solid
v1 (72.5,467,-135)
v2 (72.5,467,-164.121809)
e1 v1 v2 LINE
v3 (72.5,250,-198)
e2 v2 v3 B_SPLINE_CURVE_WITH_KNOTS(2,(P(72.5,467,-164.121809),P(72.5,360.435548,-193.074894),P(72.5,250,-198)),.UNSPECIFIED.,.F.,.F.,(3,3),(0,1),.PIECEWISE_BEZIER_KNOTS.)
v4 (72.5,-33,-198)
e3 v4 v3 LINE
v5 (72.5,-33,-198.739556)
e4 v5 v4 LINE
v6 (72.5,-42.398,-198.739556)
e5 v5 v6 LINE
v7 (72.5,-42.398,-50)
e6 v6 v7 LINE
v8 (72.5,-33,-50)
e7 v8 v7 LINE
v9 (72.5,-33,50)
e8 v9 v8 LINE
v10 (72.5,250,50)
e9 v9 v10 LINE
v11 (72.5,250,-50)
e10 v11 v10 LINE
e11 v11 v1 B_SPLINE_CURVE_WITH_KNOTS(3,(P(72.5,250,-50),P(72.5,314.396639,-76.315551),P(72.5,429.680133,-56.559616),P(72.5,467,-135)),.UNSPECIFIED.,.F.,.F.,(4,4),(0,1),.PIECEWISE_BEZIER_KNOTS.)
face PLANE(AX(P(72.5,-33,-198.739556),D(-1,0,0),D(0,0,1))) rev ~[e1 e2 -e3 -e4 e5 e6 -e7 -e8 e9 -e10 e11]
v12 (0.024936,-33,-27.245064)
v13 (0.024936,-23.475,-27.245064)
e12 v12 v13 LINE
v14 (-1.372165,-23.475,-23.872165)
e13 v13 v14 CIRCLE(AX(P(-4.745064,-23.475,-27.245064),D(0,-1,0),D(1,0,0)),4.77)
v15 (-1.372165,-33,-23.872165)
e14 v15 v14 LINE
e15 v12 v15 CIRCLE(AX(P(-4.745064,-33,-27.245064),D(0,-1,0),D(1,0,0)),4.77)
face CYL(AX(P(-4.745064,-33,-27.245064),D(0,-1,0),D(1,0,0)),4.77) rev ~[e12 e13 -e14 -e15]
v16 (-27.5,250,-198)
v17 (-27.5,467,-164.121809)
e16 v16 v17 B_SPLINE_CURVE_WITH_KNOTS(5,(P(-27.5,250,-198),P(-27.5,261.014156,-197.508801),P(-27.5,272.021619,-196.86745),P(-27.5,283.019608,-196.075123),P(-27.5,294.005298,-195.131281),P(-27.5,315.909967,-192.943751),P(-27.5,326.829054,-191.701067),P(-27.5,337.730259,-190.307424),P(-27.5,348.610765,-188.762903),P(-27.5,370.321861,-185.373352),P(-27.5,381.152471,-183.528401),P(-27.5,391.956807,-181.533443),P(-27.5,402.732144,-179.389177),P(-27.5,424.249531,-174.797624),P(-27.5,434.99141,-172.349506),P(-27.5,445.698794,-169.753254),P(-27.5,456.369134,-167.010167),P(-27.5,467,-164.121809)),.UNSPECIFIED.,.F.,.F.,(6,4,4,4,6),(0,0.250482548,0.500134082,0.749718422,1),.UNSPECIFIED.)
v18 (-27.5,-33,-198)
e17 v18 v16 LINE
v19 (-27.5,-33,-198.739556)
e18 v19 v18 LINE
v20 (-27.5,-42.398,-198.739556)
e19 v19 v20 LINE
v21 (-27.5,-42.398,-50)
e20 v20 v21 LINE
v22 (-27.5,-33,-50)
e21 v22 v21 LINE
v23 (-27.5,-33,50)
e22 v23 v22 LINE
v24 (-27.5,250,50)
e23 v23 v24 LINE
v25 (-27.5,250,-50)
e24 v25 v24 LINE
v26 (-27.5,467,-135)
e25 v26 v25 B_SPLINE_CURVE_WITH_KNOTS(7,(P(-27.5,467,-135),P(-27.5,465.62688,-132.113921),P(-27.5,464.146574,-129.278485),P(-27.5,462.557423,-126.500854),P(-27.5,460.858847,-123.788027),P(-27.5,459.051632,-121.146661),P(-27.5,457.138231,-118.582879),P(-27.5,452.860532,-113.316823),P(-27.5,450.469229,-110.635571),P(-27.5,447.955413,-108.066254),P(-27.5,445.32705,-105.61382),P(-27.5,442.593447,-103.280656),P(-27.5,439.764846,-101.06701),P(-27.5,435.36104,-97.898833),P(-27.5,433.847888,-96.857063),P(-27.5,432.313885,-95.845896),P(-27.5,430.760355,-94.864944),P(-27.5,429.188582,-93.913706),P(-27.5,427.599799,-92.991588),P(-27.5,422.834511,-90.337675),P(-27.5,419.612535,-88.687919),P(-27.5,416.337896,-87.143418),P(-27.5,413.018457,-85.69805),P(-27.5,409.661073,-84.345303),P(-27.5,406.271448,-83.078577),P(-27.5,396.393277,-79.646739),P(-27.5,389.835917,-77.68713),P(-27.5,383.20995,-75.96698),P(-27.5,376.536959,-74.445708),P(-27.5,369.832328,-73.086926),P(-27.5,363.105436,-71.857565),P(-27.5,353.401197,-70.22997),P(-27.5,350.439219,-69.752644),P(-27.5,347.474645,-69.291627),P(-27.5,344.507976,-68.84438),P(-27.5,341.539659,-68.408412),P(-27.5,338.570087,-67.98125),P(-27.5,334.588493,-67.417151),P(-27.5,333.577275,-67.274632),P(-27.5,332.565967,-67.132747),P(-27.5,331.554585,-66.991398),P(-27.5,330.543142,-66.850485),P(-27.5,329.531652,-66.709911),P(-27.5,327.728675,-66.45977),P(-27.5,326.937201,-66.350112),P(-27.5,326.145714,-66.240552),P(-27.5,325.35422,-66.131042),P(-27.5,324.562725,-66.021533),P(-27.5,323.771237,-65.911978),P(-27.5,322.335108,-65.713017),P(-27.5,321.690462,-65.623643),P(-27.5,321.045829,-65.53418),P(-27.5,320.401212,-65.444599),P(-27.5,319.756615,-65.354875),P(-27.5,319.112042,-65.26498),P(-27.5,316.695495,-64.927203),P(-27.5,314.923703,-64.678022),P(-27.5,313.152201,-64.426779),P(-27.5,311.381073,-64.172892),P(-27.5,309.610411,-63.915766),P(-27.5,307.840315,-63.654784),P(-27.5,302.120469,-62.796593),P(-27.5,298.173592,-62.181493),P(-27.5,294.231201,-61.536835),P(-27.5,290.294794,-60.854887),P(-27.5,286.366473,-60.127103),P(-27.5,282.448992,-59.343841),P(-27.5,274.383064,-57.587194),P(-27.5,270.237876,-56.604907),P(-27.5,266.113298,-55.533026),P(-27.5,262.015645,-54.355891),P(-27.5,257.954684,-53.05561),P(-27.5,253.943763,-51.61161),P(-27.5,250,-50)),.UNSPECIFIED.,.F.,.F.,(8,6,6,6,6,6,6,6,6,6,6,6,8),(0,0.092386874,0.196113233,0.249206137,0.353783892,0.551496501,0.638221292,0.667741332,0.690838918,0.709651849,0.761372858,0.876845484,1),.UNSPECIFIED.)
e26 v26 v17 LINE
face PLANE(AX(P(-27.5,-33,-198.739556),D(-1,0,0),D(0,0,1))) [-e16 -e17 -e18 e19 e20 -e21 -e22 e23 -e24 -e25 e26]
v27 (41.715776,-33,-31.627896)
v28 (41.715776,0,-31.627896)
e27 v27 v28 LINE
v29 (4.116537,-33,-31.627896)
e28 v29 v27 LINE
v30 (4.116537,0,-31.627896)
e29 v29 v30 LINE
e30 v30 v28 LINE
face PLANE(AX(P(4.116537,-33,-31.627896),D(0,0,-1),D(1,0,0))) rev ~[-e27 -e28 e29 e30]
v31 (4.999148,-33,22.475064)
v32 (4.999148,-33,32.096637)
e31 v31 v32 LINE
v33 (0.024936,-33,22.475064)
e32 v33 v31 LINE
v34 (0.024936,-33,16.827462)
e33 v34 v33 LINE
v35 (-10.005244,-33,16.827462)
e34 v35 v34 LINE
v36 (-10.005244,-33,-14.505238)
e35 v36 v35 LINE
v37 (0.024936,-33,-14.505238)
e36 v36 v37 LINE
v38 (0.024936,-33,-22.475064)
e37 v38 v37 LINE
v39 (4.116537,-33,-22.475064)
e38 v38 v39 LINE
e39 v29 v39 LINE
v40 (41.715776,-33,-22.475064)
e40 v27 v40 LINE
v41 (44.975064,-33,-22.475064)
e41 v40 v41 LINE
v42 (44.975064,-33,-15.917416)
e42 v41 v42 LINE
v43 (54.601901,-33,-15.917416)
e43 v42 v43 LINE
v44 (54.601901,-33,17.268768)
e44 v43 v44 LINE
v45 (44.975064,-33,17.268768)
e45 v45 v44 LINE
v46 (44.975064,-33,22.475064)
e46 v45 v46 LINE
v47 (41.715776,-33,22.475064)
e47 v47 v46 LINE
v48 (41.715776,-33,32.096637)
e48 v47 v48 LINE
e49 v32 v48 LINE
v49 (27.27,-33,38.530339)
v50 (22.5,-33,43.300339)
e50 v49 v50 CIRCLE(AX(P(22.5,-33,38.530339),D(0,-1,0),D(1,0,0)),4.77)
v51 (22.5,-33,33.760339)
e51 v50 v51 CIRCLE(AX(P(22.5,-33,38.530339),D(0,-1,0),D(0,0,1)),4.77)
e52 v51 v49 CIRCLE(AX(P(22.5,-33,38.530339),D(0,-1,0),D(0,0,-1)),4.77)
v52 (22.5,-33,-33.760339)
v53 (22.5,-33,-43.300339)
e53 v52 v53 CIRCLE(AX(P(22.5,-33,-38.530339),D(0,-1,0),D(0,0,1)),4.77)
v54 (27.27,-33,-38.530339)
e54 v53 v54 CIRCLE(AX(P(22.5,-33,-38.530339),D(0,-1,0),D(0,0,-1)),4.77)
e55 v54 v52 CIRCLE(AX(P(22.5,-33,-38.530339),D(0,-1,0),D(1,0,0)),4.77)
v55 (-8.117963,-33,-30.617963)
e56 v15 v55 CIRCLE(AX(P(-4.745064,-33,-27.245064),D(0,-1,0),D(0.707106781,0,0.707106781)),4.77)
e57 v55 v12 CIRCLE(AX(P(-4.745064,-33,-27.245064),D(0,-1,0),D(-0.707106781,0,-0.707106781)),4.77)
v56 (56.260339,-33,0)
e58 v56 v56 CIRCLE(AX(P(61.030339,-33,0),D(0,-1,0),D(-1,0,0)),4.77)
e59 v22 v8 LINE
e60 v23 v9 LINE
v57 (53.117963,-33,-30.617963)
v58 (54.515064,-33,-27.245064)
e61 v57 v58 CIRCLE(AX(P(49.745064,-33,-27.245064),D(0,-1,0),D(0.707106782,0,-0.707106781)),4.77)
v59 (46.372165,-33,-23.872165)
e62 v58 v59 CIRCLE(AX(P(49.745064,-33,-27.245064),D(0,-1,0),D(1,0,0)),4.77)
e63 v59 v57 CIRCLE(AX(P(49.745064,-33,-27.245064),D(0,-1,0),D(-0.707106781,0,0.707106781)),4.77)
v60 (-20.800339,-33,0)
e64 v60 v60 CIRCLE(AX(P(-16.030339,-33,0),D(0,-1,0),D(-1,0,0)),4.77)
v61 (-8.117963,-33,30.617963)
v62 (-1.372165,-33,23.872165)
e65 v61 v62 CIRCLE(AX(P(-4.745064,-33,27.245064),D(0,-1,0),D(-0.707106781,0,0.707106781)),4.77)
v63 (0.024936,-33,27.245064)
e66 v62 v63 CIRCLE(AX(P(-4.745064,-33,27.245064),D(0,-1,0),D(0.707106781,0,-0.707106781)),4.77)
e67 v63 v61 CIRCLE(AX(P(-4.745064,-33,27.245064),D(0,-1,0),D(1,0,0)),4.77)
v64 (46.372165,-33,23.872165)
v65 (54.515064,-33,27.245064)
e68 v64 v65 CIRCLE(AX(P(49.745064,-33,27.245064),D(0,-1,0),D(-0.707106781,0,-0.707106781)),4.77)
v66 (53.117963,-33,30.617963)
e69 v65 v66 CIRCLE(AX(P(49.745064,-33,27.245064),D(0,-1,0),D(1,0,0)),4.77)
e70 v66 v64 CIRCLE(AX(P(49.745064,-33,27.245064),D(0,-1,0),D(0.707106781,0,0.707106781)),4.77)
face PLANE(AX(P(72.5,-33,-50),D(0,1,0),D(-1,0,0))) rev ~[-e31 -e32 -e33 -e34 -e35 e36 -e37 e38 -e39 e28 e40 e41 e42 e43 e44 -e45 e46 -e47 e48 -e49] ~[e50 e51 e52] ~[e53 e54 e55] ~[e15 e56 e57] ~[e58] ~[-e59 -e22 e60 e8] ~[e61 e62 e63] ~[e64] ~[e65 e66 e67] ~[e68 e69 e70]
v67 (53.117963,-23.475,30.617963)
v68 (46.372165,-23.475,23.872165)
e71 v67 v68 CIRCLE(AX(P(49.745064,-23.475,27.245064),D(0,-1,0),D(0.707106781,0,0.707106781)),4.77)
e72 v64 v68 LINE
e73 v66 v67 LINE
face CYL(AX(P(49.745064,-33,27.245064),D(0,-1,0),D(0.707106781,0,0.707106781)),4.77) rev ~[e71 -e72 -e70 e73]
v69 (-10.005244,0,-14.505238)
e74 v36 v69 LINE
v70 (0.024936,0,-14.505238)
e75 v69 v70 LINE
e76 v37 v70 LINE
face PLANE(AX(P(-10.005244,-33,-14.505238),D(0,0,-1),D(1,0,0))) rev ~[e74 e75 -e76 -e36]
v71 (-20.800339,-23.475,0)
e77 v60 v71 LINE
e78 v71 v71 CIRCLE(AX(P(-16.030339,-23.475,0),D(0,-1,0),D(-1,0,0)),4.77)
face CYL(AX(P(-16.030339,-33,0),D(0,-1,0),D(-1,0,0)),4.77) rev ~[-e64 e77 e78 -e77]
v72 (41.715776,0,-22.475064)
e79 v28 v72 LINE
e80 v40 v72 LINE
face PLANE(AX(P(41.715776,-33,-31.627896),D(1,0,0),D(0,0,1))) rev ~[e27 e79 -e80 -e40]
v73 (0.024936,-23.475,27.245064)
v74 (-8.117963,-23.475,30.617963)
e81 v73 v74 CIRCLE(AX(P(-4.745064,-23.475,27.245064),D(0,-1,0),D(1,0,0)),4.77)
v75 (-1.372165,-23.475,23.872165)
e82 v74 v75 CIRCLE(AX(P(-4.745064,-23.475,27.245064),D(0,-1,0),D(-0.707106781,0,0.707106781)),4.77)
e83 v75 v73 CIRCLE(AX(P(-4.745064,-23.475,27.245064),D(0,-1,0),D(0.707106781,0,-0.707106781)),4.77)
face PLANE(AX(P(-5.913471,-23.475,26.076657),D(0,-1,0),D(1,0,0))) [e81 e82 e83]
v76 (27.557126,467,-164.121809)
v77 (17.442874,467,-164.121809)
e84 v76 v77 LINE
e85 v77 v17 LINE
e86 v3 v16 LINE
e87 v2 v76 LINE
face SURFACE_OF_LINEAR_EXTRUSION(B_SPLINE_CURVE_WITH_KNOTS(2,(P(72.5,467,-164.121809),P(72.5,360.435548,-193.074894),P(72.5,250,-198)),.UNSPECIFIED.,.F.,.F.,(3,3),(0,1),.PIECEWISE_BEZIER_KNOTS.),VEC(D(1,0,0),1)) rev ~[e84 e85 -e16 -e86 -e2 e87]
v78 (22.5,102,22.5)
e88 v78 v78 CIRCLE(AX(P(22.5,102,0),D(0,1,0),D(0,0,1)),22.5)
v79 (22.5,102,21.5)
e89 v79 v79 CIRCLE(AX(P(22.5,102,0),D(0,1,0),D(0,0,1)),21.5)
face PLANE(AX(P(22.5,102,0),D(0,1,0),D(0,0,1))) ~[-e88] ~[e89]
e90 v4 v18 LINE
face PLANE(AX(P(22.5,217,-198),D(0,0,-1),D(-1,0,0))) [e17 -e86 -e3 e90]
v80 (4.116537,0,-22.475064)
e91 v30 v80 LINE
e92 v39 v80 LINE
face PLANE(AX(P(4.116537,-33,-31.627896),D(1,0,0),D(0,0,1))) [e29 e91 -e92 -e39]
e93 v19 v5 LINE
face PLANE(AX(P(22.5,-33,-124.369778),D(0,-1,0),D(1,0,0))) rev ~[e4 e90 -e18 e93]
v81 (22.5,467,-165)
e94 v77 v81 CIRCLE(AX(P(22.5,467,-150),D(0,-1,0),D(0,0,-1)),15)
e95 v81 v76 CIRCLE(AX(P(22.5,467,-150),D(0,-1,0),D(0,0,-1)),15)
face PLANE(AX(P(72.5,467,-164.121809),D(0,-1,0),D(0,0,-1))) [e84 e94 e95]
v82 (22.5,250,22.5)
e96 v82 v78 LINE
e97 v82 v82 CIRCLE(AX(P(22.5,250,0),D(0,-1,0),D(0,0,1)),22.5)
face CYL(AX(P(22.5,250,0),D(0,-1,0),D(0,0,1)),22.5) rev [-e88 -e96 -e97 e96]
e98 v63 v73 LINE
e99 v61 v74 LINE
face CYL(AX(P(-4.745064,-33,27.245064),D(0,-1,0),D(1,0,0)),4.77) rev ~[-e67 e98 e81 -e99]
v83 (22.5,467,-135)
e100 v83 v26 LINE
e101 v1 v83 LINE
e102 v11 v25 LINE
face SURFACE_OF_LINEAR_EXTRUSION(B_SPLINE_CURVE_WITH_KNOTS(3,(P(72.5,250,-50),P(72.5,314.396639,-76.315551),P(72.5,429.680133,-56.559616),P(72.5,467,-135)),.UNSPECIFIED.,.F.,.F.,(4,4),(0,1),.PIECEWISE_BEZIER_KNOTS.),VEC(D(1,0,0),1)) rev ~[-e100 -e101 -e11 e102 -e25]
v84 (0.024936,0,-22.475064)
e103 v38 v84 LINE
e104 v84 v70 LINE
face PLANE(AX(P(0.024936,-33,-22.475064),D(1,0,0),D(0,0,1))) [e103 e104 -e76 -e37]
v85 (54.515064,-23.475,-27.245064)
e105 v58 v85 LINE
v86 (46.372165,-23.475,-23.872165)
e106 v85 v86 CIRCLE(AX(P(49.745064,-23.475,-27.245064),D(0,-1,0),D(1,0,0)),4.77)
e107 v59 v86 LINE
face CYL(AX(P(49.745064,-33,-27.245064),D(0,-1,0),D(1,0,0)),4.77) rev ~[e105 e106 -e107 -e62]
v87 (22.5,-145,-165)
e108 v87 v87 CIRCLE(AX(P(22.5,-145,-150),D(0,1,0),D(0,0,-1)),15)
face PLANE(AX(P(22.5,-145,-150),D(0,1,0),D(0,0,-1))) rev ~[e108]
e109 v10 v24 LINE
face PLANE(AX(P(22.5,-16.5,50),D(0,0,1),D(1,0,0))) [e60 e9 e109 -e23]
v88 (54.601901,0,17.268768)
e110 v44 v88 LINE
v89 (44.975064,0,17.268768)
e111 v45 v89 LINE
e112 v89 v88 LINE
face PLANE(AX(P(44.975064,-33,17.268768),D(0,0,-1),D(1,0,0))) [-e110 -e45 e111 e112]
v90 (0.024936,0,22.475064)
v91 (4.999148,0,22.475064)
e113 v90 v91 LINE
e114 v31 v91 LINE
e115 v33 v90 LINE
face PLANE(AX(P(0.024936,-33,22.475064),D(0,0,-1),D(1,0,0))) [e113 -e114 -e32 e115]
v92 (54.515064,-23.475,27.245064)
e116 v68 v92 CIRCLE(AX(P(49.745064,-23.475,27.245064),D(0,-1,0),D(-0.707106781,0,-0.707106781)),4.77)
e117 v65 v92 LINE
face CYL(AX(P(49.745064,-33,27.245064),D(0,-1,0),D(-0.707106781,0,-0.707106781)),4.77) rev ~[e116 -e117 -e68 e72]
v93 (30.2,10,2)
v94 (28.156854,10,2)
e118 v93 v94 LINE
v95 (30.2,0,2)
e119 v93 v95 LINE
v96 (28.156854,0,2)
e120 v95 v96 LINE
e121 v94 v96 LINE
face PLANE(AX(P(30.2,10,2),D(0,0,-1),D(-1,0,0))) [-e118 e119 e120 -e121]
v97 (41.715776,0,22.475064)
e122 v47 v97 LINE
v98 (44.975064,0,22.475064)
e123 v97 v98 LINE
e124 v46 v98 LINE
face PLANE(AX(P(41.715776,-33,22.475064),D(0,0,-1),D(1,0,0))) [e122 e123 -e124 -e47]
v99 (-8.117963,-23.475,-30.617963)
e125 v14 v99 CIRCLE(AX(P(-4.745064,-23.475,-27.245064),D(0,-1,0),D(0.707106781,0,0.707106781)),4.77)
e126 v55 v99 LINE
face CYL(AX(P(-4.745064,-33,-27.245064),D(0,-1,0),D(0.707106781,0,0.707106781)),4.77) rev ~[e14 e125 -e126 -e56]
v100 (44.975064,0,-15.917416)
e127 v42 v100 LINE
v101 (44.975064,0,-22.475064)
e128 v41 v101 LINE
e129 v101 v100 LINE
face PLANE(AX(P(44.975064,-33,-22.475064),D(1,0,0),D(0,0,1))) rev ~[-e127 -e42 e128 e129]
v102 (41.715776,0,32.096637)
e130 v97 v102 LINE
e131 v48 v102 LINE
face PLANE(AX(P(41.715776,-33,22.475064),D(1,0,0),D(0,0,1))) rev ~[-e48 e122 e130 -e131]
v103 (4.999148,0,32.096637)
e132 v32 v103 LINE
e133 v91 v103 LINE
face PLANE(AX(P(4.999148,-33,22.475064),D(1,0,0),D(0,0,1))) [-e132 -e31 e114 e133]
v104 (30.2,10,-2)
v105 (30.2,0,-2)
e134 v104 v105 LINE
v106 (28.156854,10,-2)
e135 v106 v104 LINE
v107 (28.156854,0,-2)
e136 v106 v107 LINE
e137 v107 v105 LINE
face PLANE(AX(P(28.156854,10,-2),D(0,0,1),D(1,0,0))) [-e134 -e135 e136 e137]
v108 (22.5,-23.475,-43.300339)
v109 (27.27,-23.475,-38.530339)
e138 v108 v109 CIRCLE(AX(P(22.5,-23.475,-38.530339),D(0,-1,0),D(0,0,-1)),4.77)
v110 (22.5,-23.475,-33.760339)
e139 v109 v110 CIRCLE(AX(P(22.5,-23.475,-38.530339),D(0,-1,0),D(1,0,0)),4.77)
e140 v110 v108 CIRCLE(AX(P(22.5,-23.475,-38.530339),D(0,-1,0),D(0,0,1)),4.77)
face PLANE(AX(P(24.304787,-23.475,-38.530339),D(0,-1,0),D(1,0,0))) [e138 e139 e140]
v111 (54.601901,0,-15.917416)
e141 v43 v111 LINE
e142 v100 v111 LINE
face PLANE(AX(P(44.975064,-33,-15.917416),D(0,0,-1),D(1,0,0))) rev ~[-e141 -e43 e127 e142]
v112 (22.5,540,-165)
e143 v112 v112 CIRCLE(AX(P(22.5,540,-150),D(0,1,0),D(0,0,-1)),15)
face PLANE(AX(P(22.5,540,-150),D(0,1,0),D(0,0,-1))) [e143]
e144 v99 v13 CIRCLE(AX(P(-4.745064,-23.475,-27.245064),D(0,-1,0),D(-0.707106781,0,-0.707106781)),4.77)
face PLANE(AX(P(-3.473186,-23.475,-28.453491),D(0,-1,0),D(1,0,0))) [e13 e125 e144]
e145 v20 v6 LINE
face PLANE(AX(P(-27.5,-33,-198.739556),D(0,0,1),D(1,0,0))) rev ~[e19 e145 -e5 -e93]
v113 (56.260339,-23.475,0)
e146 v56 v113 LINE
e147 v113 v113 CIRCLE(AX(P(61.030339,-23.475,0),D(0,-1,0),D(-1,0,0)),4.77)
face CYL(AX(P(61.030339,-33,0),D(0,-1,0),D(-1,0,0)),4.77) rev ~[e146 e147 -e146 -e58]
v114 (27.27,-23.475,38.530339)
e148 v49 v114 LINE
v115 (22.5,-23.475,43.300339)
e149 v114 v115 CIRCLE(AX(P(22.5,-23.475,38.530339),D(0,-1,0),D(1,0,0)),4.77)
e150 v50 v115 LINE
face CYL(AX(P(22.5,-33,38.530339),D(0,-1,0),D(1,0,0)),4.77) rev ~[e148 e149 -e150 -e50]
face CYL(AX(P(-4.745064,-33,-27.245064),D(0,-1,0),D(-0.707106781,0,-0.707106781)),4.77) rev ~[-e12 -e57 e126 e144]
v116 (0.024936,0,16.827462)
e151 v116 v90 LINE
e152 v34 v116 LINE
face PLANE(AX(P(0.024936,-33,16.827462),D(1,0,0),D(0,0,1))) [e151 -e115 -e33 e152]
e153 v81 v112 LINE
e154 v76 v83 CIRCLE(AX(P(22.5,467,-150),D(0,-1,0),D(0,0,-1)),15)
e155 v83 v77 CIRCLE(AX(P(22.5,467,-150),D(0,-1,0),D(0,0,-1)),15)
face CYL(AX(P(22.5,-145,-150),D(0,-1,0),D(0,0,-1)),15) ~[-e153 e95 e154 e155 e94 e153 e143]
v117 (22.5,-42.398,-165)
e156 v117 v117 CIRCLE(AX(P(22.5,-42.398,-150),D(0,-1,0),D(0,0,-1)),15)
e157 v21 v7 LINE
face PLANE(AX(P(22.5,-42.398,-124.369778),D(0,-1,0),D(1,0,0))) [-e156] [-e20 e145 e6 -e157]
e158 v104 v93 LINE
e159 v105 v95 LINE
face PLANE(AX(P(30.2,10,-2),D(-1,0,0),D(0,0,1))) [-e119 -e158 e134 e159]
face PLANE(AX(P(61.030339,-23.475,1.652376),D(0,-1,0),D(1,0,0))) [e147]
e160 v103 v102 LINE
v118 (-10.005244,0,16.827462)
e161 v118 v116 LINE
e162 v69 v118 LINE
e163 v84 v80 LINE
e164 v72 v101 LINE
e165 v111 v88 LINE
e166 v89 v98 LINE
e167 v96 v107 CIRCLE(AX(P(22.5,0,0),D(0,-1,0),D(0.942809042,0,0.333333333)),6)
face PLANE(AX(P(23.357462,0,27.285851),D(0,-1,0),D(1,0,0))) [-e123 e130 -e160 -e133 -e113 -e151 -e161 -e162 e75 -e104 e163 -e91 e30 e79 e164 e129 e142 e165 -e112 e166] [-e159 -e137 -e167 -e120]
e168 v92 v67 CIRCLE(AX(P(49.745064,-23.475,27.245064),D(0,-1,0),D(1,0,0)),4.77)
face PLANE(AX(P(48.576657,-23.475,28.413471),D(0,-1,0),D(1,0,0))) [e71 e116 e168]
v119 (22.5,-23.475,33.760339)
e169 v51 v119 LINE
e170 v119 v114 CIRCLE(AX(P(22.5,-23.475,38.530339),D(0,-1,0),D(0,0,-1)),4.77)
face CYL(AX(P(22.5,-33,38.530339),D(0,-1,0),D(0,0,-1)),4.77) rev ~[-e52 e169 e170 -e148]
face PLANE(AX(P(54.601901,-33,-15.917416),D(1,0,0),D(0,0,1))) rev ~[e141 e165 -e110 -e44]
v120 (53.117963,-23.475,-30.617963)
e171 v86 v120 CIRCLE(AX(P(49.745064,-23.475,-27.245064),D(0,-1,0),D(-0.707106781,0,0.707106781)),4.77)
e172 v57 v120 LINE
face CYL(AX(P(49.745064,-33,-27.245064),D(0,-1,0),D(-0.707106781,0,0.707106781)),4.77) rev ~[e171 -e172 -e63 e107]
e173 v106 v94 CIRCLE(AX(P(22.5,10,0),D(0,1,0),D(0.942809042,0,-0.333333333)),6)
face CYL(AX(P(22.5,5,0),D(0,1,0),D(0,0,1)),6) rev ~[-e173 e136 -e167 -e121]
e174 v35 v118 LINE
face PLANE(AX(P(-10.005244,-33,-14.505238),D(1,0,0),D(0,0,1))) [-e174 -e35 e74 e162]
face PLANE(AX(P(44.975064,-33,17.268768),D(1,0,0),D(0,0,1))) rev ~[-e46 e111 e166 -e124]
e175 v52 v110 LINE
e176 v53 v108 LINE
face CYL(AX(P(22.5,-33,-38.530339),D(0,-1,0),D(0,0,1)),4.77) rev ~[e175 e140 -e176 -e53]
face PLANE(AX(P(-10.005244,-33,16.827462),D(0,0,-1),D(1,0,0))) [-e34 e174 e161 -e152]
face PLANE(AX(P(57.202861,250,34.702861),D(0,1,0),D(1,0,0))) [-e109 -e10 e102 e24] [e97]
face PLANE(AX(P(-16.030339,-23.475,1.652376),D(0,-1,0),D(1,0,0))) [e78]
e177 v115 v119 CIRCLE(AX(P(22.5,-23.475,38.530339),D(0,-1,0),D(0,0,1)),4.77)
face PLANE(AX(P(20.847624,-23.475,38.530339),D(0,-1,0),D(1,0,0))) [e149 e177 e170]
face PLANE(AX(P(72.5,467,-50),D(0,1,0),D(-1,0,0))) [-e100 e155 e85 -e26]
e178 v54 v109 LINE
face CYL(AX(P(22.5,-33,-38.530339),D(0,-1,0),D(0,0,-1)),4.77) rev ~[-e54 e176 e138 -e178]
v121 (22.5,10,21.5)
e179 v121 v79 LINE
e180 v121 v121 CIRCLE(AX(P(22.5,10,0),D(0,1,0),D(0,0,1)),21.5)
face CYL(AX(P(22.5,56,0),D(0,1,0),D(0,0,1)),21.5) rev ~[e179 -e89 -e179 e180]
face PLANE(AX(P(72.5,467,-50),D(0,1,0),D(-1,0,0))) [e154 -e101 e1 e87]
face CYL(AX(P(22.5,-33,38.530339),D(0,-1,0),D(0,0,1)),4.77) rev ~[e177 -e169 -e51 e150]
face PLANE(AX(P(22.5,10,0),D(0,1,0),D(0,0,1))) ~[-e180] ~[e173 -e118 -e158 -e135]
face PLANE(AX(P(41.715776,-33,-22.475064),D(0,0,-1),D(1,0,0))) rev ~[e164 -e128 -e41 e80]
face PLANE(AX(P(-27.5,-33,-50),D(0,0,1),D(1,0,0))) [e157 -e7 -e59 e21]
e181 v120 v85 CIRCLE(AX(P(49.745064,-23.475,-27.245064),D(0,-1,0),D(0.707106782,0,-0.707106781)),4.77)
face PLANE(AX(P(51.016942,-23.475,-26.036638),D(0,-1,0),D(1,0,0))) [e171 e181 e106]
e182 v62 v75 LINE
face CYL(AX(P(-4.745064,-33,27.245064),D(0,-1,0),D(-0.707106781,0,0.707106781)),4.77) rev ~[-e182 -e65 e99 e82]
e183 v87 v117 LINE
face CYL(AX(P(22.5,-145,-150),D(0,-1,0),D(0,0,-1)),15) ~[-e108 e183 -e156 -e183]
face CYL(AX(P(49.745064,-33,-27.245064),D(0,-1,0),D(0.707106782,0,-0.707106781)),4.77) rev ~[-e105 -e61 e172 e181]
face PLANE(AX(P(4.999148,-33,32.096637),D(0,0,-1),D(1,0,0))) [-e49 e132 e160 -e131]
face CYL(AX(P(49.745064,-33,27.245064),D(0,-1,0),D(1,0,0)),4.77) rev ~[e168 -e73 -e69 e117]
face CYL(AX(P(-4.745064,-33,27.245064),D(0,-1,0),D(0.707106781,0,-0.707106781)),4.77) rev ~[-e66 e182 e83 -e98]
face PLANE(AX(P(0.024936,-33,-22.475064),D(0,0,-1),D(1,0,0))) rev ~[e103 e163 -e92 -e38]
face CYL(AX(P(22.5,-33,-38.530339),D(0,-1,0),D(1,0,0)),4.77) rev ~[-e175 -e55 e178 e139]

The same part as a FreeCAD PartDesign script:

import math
import FreeCAD as App
import Part
import Sketcher
Q = App.Units.Quantity

doc = App.newDocument("Part")
params = doc.addObject("Spreadsheet::Sheet", "Params")
for row, (alias, value) in enumerate([
    ("sketch1_width", "1 mm"),
    ("sketch1_width2", "10 mm"),
    ("sketch1_height", "92 mm"),
    ("sketch1_height2", "148 mm"),
    ("sketch1_width3", "26.5 mm"),
    ("revolution_angle", "360 deg"),
    ("sketch2_radius", "6 mm"),
    ("sketch2_height", "4 mm"),
    ("pocket1_length", "10 mm"),
    ("sketch3_diameter", "100 mm"),
    ("sketch3_diameter2", "65 mm"),
    ("pad1_length", "250 mm"),
    ("sketch4_radius", "50 mm"),
    ("pad2_length", "250 mm"),
    ("sketch5_width", "100 mm"),
    ("sketch5_height", "33 mm"),
    ("pad3_length", "50 mm"),
    ("pad3_length2", "50 mm"),
    ("sketch6_diameter", "9.54 mm"),
    ("pocket2_length", "9.525 mm"),
    ("pocket3_length", "33 mm"),
    ("sketch8_width", "100 mm"),
    ("sketch8_height", "500 mm"),
    ("pad4_length", "148 mm"),
    ("sketch9_diameter", "30 mm"),
    ("pad5_length", "73 mm"),
    ("pad5_length2", "612 mm"),
    ("pocket4_length", "239 mm"),
    ("sketch11_width", "100 mm"),
    ("pad6_length", "9.398 mm"),
], start=1):
    params.set(f"A{row}", alias)
    params.set(f"B{row}", "=" + value)
    params.setAlias(f"B{row}", alias)

body = doc.addObject("PartDesign::Body", "Body")

# Sketch on XY plane
sketch1 = body.newObject("Sketcher::SketchObject", "Sketch")
sketch1.AttachmentSupport = (doc.getObject("XY_Plane"), [""])
sketch1.MapMode = "FlatFace"
sketch1.addGeometry([
    Part.LineSegment(App.Vector(-10, 0, 0), App.Vector(16.5, 0, 0)),  # 0
    Part.LineSegment(App.Vector(16.5, 0, 0), App.Vector(16.5, 10, 0)),  # 1
    Part.LineSegment(App.Vector(16.5, 10, 0), App.Vector(1, 10, 0)),  # 2
    Part.LineSegment(App.Vector(1, 10, 0), App.Vector(1, 102, 0)),  # 3
    Part.LineSegment(App.Vector(1, 102, 0), App.Vector(0, 102, 0)),  # 4
    Part.LineSegment(App.Vector(0, 102, 0), App.Vector(0, 250, 0)),  # 5
    Part.LineSegment(App.Vector(0, 250, 0), App.Vector(-10, 250, 0)),  # 6
    Part.LineSegment(App.Vector(-10, 250, 0), App.Vector(-10, 0, 0)),  # 7
    Part.LineSegment(App.Vector(28.5, 10, 0), App.Vector(28.5, 0, 0)),  # 8
    Part.LineSegment(App.Vector(28.5, 0, 0), App.Vector(55, 0, 0)),  # 9
    Part.LineSegment(App.Vector(55, 0, 0), App.Vector(55, 250, 0)),  # 10
    Part.LineSegment(App.Vector(55, 250, 0), App.Vector(45, 250, 0)),  # 11
    Part.LineSegment(App.Vector(45, 250, 0), App.Vector(45, 102, 0)),  # 12
    Part.LineSegment(App.Vector(45, 102, 0), App.Vector(44, 102, 0)),  # 13
    Part.LineSegment(App.Vector(44, 102, 0), App.Vector(44, 10, 0)),  # 14
    Part.LineSegment(App.Vector(44, 10, 0), App.Vector(28.5, 10, 0)),  # 15
], False)
sketch1.addGeometry(Part.LineSegment(App.Vector(22.5, 0, 0), App.Vector(22.5, 250, 0)), True)  # axis
sketch1.addConstraint([
    Sketcher.Constraint("Coincident", 0, 2, 1, 1),
    Sketcher.Constraint("Coincident", 1, 2, 2, 1),
    Sketcher.Constraint("Coincident", 2, 2, 3, 1),
    Sketcher.Constraint("Coincident", 3, 2, 4, 1),
    Sketcher.Constraint("Coincident", 4, 2, 5, 1),
    Sketcher.Constraint("Coincident", 5, 2, 6, 1),
    Sketcher.Constraint("Coincident", 6, 2, 7, 1),
    Sketcher.Constraint("Coincident", 7, 2, 0, 1),
    Sketcher.Constraint("Coincident", 8, 2, 9, 1),
    Sketcher.Constraint("Coincident", 9, 2, 10, 1),
    Sketcher.Constraint("Coincident", 10, 2, 11, 1),
    Sketcher.Constraint("Coincident", 11, 2, 12, 1),
    Sketcher.Constraint("Coincident", 12, 2, 13, 1),
    Sketcher.Constraint("Coincident", 13, 2, 14, 1),
    Sketcher.Constraint("Coincident", 14, 2, 15, 1),
    Sketcher.Constraint("Coincident", 15, 2, 8, 1),
    Sketcher.Constraint("Horizontal", 0),
    Sketcher.Constraint("Vertical", 1),
    Sketcher.Constraint("Horizontal", 2),
    Sketcher.Constraint("Vertical", 3),
    Sketcher.Constraint("Horizontal", 4),
    Sketcher.Constraint("Vertical", 5),
    Sketcher.Constraint("Horizontal", 6),
    Sketcher.Constraint("Vertical", 7),
    Sketcher.Constraint("Vertical", 8),
    Sketcher.Constraint("Horizontal", 9),
    Sketcher.Constraint("Vertical", 10),
    Sketcher.Constraint("Horizontal", 11),
    Sketcher.Constraint("Vertical", 12),
    Sketcher.Constraint("Horizontal", 13),
    Sketcher.Constraint("Vertical", 14),
    Sketcher.Constraint("Horizontal", 15),
    Sketcher.Constraint("Vertical", 16),
    Sketcher.Constraint("PointOnObject", 0, 2, -1),
    Sketcher.Constraint("PointOnObject", 4, 2, -2),
    Sketcher.Constraint("PointOnObject", 8, 2, -1),
    Sketcher.Constraint("PointOnObject", 16, 1, -1),
    Sketcher.Constraint("Horizontal", 6, 2, 10, 2),
    Sketcher.Constraint("Horizontal", 4, 2, 12, 2),
    Sketcher.Constraint("Horizontal", 2, 2, 14, 2),
    Sketcher.Constraint("Horizontal", 11, 2, 16, 2),
    Sketcher.Constraint("Equal", 0, 9),
    Sketcher.Constraint("Equal", 6, 11),
    Sketcher.Constraint("Equal", 4, 13),
    Sketcher.Constraint("Equal", 11, 1),
    Sketcher.Constraint("DistanceX", 4, 2, 4, 1, Q("1 mm")),
    Sketcher.Constraint("DistanceX", 6, 2, 6, 1, Q("10 mm")),
    Sketcher.Constraint("DistanceY", 3, 1, 3, 2, Q("92 mm")),
    Sketcher.Constraint("DistanceY", 5, 1, 5, 2, Q("148 mm")),
    Sketcher.Constraint("DistanceX", 0, 1, 0, 2, Q("26.5 mm")),
    Sketcher.Constraint("DistanceX", -1, 1, 9, 2, Q("55 mm")),
    Sketcher.Constraint("DistanceX", 0, 2, 16, 1, Q("6 mm")),
])
sketch1.setExpression("Constraints[45]", "Params.sketch1_width")
sketch1.setExpression("Constraints[46]", "Params.sketch1_width2")
sketch1.setExpression("Constraints[47]", "Params.sketch1_height")
sketch1.setExpression("Constraints[48]", "Params.sketch1_height2")
sketch1.setExpression("Constraints[49]", "Params.sketch1_width3")
revolution = body.newObject("PartDesign::Revolution", "Revolution")
revolution.Profile = sketch1
revolution.ReferenceAxis = (sketch1, ["Axis0"])
revolution.setExpression("Angle", "Params.revolution_angle")

# Sketch on XZ plane
sketch2 = body.newObject("Sketcher::SketchObject", "Sketch001")
sketch2.AttachmentSupport = (doc.getObject("XZ_Plane"), [""])
sketch2.MapMode = "FlatFace"
sketch2.AttachmentOffset = App.Placement(App.Vector(0, 0, -10), App.Rotation())
sketch2.addGeometry([
    Part.LineSegment(App.Vector(30.2, -2, 0), App.Vector(30.2, 2, 0)),  # 0
    Part.LineSegment(App.Vector(30.2, 2, 0), App.Vector(28.156854, 2, 0)),  # 1
    Part.ArcOfCircle(Part.Circle(App.Vector(22.5, 0, 0), App.Vector(0, 0, 1), 6), math.radians(0), math.radians(19.471221)),  # 2
    Part.ArcOfCircle(Part.Circle(App.Vector(22.5, 0, 0), App.Vector(0, 0, 1), 6), math.radians(-19.471221), math.radians(0)),  # 3
    Part.LineSegment(App.Vector(28.156854, -2, 0), App.Vector(30.2, -2, 0)),  # 4
], False)
sketch2.addConstraint([
    Sketcher.Constraint("Coincident", 0, 2, 1, 1),
    Sketcher.Constraint("Coincident", 1, 2, 2, 2),
    Sketcher.Constraint("Tangent", 2, 1, 3, 2),
    Sketcher.Constraint("Coincident", 3, 1, 4, 1),
    Sketcher.Constraint("Coincident", 4, 2, 0, 1),
    Sketcher.Constraint("Vertical", 0),
    Sketcher.Constraint("Horizontal", 1),
    Sketcher.Constraint("Horizontal", 4),
    Sketcher.Constraint("Equal", 2, 3),
    Sketcher.Constraint("Symmetric", 1, 2, 3, 1, -1),
    Sketcher.Constraint("PointOnObject", 2, 1, -1),
    Sketcher.Constraint("Radius", 2, Q("6 mm")),
    Sketcher.Constraint("DistanceY", 0, 1, 0, 2, Q("4 mm")),
    Sketcher.Constraint("DistanceX", -1, 1, 2, 3, Q("22.5 mm")),
    Sketcher.Constraint("DistanceX", -1, 1, 0, 2, Q("30.2 mm")),
])
sketch2.setExpression("Constraints[11]", "Params.sketch2_radius")
sketch2.setExpression("Constraints[12]", "Params.sketch2_height")
pocket1 = body.newObject("PartDesign::Pocket", "Pocket")
pocket1.Profile = sketch2
pocket1.setExpression("Length", "Params.pocket1_length")
pocket1.Reversed = True

# Sketch on XZ plane
sketch3 = body.newObject("Sketcher::SketchObject", "Sketch002")
sketch3.AttachmentSupport = (doc.getObject("XZ_Plane"), [""])
sketch3.MapMode = "FlatFace"
sketch3.addGeometry([
    Part.Circle(App.Vector(22.5, 0, 0), App.Vector(0, 0, 1), 50),
    Part.Circle(App.Vector(22.5, 0, 0), App.Vector(0, 0, 1), 32.5),
], False)
sketch3.addConstraint([
    Sketcher.Constraint("Coincident", 1, 3, 0, 3),
    Sketcher.Constraint("PointOnObject", 0, 3, -1),
    Sketcher.Constraint("Diameter", 0, Q("100 mm")),
    Sketcher.Constraint("Diameter", 1, Q("65 mm")),
    Sketcher.Constraint("DistanceX", -1, 1, 0, 3, Q("22.5 mm")),
])
sketch3.setExpression("Constraints[2]", "Params.sketch3_diameter")
sketch3.setExpression("Constraints[3]", "Params.sketch3_diameter2")
pad1 = body.newObject("PartDesign::Pad", "Pad")
pad1.Profile = sketch3
pad1.setExpression("Length", "Params.pad1_length")
pad1.Reversed = True

# Sketch on XZ plane
sketch4 = body.newObject("Sketcher::SketchObject", "Sketch003")
sketch4.AttachmentSupport = (doc.getObject("XZ_Plane"), [""])
sketch4.MapMode = "FlatFace"
sketch4.addGeometry([
    Part.ArcOfCircle(Part.Circle(App.Vector(22.5, 0, 0), App.Vector(0, 0, 1), 50), math.radians(0), math.radians(90)),  # 0
    Part.LineSegment(App.Vector(22.5, 50, 0), App.Vector(72.5, 50, 0)),  # 1
    Part.LineSegment(App.Vector(72.5, 50, 0), App.Vector(72.5, 0, 0)),  # 2
    Part.ArcOfCircle(Part.Circle(App.Vector(22.5, 0, 0), App.Vector(0, 0, 1), 50), math.radians(90), math.radians(180)),  # 3
    Part.LineSegment(App.Vector(-27.5, 0, 0), App.Vector(-27.5, 50, 0)),  # 4
    Part.LineSegment(App.Vector(-27.5, 50, 0), App.Vector(22.5, 50, 0)),  # 5
    Part.LineSegment(App.Vector(72.5, -50, 0), App.Vector(22.5, -50, 0)),  # 6
    Part.ArcOfCircle(Part.Circle(App.Vector(22.5, 0, 0), App.Vector(0, 0, 1), 50), math.radians(-90), math.radians(0)),  # 7
    Part.LineSegment(App.Vector(72.5, 0, 0), App.Vector(72.5, -50, 0)),  # 8
    Part.LineSegment(App.Vector(-27.5, -50, 0), App.Vector(-27.5, 0, 0)),  # 9
    Part.ArcOfCircle(Part.Circle(App.Vector(22.5, 0, 0), App.Vector(0, 0, 1), 50), math.radians(-180), math.radians(-90)),  # 10
    Part.LineSegment(App.Vector(22.5, -50, 0), App.Vector(-27.5, -50, 0)),  # 11
], False)
sketch4.addConstraint([
    Sketcher.Constraint("Tangent", 0, 2, 1, 1),
    Sketcher.Constraint("Coincident", 1, 2, 2, 1),
    Sketcher.Constraint("Tangent", 2, 2, 0, 1),
    Sketcher.Constraint("Tangent", 3, 2, 4, 1),
    Sketcher.Constraint("Coincident", 4, 2, 5, 1),
    Sketcher.Constraint("Tangent", 5, 2, 3, 1),
    Sketcher.Constraint("Tangent", 6, 2, 7, 1),
    Sketcher.Constraint("Tangent", 7, 2, 8, 1),
    Sketcher.Constraint("Coincident", 8, 2, 6, 1),
    Sketcher.Constraint("Tangent", 9, 2, 10, 1),
    Sketcher.Constraint("Tangent", 10, 2, 11, 1),
    Sketcher.Constraint("Coincident", 11, 2, 9, 1),
    Sketcher.Constraint("Horizontal", 1),
    Sketcher.Constraint("Vertical", 2),
    Sketcher.Constraint("Vertical", 4),
    Sketcher.Constraint("Horizontal", 5),
    Sketcher.Constraint("Horizontal", 6),
    Sketcher.Constraint("Vertical", 8),
    Sketcher.Constraint("Vertical", 9),
    Sketcher.Constraint("Horizontal", 11),
    Sketcher.Constraint("Coincident", 3, 3, 0, 3),
    Sketcher.Constraint("Coincident", 7, 3, 0, 3),
    Sketcher.Constraint("Coincident", 10, 3, 0, 3),
    Sketcher.Constraint("Equal", 0, 3),
    Sketcher.Constraint("Equal", 3, 7),
    Sketcher.Constraint("Equal", 7, 10),
    Sketcher.Constraint("PointOnObject", 0, 3, -1),
    Sketcher.Constraint("Radius", 0, Q("50 mm")),
    Sketcher.Constraint("DistanceX", -1, 1, 0, 3, Q("22.5 mm")),
])
sketch4.setExpression("Constraints[27]", "Params.sketch4_radius")
pad2 = body.newObject("PartDesign::Pad", "Pad001")
pad2.Profile = sketch4
pad2.setExpression("Length", "Params.pad2_length")
pad2.Reversed = True

# Sketch on XY plane
sketch5 = body.newObject("Sketcher::SketchObject", "Sketch004")
sketch5.AttachmentSupport = (doc.getObject("XY_Plane"), [""])
sketch5.MapMode = "FlatFace"
sketch5.addGeometry([
    Part.LineSegment(App.Vector(-27.5, 0, 0), App.Vector(-27.5, -33, 0)),
    Part.LineSegment(App.Vector(-27.5, -33, 0), App.Vector(72.5, -33, 0)),
    Part.LineSegment(App.Vector(72.5, -33, 0), App.Vector(72.5, 0, 0)),
    Part.LineSegment(App.Vector(72.5, 0, 0), App.Vector(-27.5, 0, 0)),
], False)
sketch5.addConstraint([
    Sketcher.Constraint("Coincident", 0, 2, 1, 1),
    Sketcher.Constraint("Coincident", 1, 2, 2, 1),
    Sketcher.Constraint("Coincident", 2, 2, 3, 1),
    Sketcher.Constraint("Coincident", 3, 2, 0, 1),
    Sketcher.Constraint("Vertical", 0),
    Sketcher.Constraint("Horizontal", 1),
    Sketcher.Constraint("Vertical", 2),
    Sketcher.Constraint("Horizontal", 3),
    Sketcher.Constraint("PointOnObject", 2, 2, -1),
    Sketcher.Constraint("DistanceX", 1, 1, 1, 2, Q("100 mm")),
    Sketcher.Constraint("DistanceY", 0, 2, 0, 1, Q("33 mm")),
    Sketcher.Constraint("DistanceX", 0, 2, -1, 1, Q("27.5 mm")),
])
sketch5.setExpression("Constraints[9]", "Params.sketch5_width")
sketch5.setExpression("Constraints[10]", "Params.sketch5_height")
pad3 = body.newObject("PartDesign::Pad", "Pad002")
pad3.Profile = sketch5
pad3.Type = "TwoLengths"
pad3.setExpression("Length", "Params.pad3_length")
pad3.setExpression("Length2", "Params.pad3_length2")

# Sketch on XZ plane
sketch6 = body.newObject("Sketcher::SketchObject", "Sketch005")
sketch6.AttachmentSupport = (doc.getObject("XZ_Plane"), [""])
sketch6.MapMode = "FlatFace"
sketch6.AttachmentOffset = App.Placement(App.Vector(0, 0, 33), App.Rotation())
sketch6.addGeometry([
    Part.ArcOfCircle(Part.Circle(App.Vector(-4.745064, -27.245064, 0), App.Vector(0, 0, 1), 4.77), math.radians(0), math.radians(45)),  # 0
    Part.ArcOfCircle(Part.Circle(App.Vector(-4.745064, -27.245064, 0), App.Vector(0, 0, 1), 4.77), math.radians(45), math.radians(225)),  # 1
    Part.ArcOfCircle(Part.Circle(App.Vector(-4.745064, -27.245064, 0), App.Vector(0, 0, 1), 4.77), math.radians(-135), math.radians(0)),  # 2
    Part.ArcOfCircle(Part.Circle(App.Vector(22.5, -38.530339, 0), App.Vector(0, 0, 1), 4.77), math.radians(0), math.radians(90)),  # 3
    Part.ArcOfCircle(Part.Circle(App.Vector(22.5, -38.530339, 0), App.Vector(0, 0, 1), 4.77), math.radians(90), math.radians(270)),  # 4
    Part.ArcOfCircle(Part.Circle(App.Vector(22.5, -38.530339, 0), App.Vector(0, 0, 1), 4.77), math.radians(-90), math.radians(0)),  # 5
    Part.ArcOfCircle(Part.Circle(App.Vector(49.745064, -27.245064, 0), App.Vector(0, 0, 1), 4.77), math.radians(0), math.radians(135)),  # 6
    Part.ArcOfCircle(Part.Circle(App.Vector(49.745064, -27.245064, 0), App.Vector(0, 0, 1), 4.77), math.radians(135), math.radians(315)),  # 7
    Part.ArcOfCircle(Part.Circle(App.Vector(49.745064, -27.245064, 0), App.Vector(0, 0, 1), 4.77), math.radians(-45), math.radians(0)),  # 8
    Part.Circle(App.Vector(61.030339, 0, 0), App.Vector(0, 0, 1), 4.77),  # 9
    Part.ArcOfCircle(Part.Circle(App.Vector(49.745064, 27.245064, 0), App.Vector(0, 0, 1), 4.77), math.radians(45), math.radians(225)),  # 10
    Part.ArcOfCircle(Part.Circle(App.Vector(49.745064, 27.245064, 0), App.Vector(0, 0, 1), 4.77), math.radians(-135), math.radians(0)),  # 11
    Part.ArcOfCircle(Part.Circle(App.Vector(49.745064, 27.245064, 0), App.Vector(0, 0, 1), 4.77), math.radians(0), math.radians(45)),  # 12
    Part.ArcOfCircle(Part.Circle(App.Vector(22.5, 38.530339, 0), App.Vector(0, 0, 1), 4.77), math.radians(90), math.radians(270)),  # 13
    Part.ArcOfCircle(Part.Circle(App.Vector(22.5, 38.530339, 0), App.Vector(0, 0, 1), 4.77), math.radians(-90), math.radians(0)),  # 14
    Part.ArcOfCircle(Part.Circle(App.Vector(22.5, 38.530339, 0), App.Vector(0, 0, 1), 4.77), math.radians(0), math.radians(90)),  # 15
    Part.ArcOfCircle(Part.Circle(App.Vector(-4.745064, 27.245064, 0), App.Vector(0, 0, 1), 4.77), math.radians(135), math.radians(315)),  # 16
    Part.ArcOfCircle(Part.Circle(App.Vector(-4.745064, 27.245064, 0), App.Vector(0, 0, 1), 4.77), math.radians(-45), math.radians(0)),  # 17
    Part.ArcOfCircle(Part.Circle(App.Vector(-4.745064, 27.245064, 0), App.Vector(0, 0, 1), 4.77), math.radians(0), math.radians(135)),  # 18
    Part.Circle(App.Vector(-16.030339, 0, 0), App.Vector(0, 0, 1), 4.77),  # 19
], False)
sketch6.addConstraint([
    Sketcher.Constraint("Tangent", 0, 2, 1, 1),
    Sketcher.Constraint("Tangent", 1, 2, 2, 1),
    Sketcher.Constraint("Tangent", 2, 2, 0, 1),
    Sketcher.Constraint("Tangent", 3, 2, 4, 1),
    Sketcher.Constraint("Tangent", 4, 2, 5, 1),
    Sketcher.Constraint("Tangent", 5, 2, 3, 1),
    Sketcher.Constraint("Tangent", 6, 2, 7, 1),
    Sketcher.Constraint("Tangent", 7, 2, 8, 1),
    Sketcher.Constraint("Tangent", 8, 2, 6, 1),
    Sketcher.Constraint("Tangent", 10, 2, 11, 1),
    Sketcher.Constraint("Tangent", 11, 2, 12, 1),
    Sketcher.Constraint("Tangent", 12, 2, 10, 1),
    Sketcher.Constraint("Tangent", 13, 2, 14, 1),
    Sketcher.Constraint("Tangent", 14, 2, 15, 1),
    Sketcher.Constraint("Tangent", 15, 2, 13, 1),
    Sketcher.Constraint("Tangent", 16, 2, 17, 1),
    Sketcher.Constraint("Tangent", 17, 2, 18, 1),
    Sketcher.Constraint("Tangent", 18, 2, 16, 1),
    Sketcher.Constraint("Equal", 2, 3),
    Sketcher.Constraint("Equal", 5, 6),
    Sketcher.Constraint("Equal", 8, 9),
    Sketcher.Constraint("Equal", 9, 10),
    Sketcher.Constraint("Equal", 12, 13),
    Sketcher.Constraint("Equal", 15, 16),
    Sketcher.Constraint("Equal", 18, 19),
    Sketcher.Constraint("Symmetric", 6, 3, 10, 3, -1),
    Sketcher.Constraint("Symmetric", 3, 3, 13, 3, -1),
    Sketcher.Constraint("Symmetric", 0, 3, 16, 3, -1),
    Sketcher.Constraint("PointOnObject", 9, 3, -1),
    Sketcher.Constraint("PointOnObject", 19, 3, -1),
    Sketcher.Constraint("Horizontal", 2, 3, 6, 3),
    Sketcher.Constraint("Horizontal", 8, 3, 2, 2),
    Sketcher.Constraint("Horizontal", 4, 3, 5, 2),
    Sketcher.Constraint("Horizontal", 0, 2, 6, 2),
    Sketcher.Constraint("Horizontal", 1, 2, 7, 2),
    Sketcher.Constraint("Horizontal", 2, 2, 8, 2),
    Sketcher.Constraint("Horizontal", 18, 3, 11, 2),
    Sketcher.Constraint("Horizontal", 15, 3, 14, 2),
    Sketcher.Constraint("Horizontal", 10, 2, 16, 2),
    Sketcher.Constraint("Horizontal", 11, 2, 17, 2),
    Sketcher.Constraint("Horizontal", 12, 2, 18, 2),
    Sketcher.Constraint("Vertical", 15, 3, 3, 2),
    Sketcher.Constraint("Vertical", 3, 2, 4, 2),
    Sketcher.Constraint("Vertical", 6, 2, 10, 2),
    Sketcher.Constraint("Vertical", 7, 2, 12, 2),
    Sketcher.Constraint("Vertical", 4, 2, 13, 2),
    Sketcher.Constraint("Vertical", 13, 2, 15, 2),
    Sketcher.Constraint("Diameter", 9, Q("9.54 mm")),
    Sketcher.Constraint("DistanceX", -1, 1, 3, 3, Q("22.5 mm")),
    Sketcher.Constraint("DistanceX", 2, 3, 0, 2, Q("3.372899 mm")),
    Sketcher.Constraint("DistanceX", 1, 2, 1, 3, Q("3.372899 mm")),
    Sketcher.Constraint("DistanceY", 3, 3, -1, 1, Q("38.530339 mm")),
    Sketcher.Constraint("DistanceX", -1, 1, 9, 3, Q("61.030339 mm")),
    Sketcher.Constraint("DistanceX", 19, 3, -1, 1, Q("16.030339 mm")),
    Sketcher.Constraint("DistanceX", 0, 3, 6, 3, Q("54.490128 mm")),
    Sketcher.Constraint("DistanceY", 8, 3, 10, 3, Q("54.490128 mm")),
    Sketcher.Constraint("DistanceX", 0, 3, -1, 1, Q("4.745064 mm")),
])
sketch6.setExpression("Constraints[47]", "Params.sketch6_diameter")
pocket2 = body.newObject("PartDesign::Pocket", "Pocket001")
pocket2.Profile = sketch6
pocket2.setExpression("Length", "Params.pocket2_length")

# Sketch on XZ plane
sketch7 = body.newObject("Sketcher::SketchObject", "Sketch006")
sketch7.AttachmentSupport = (doc.getObject("XZ_Plane"), [""])
sketch7.MapMode = "FlatFace"
sketch7.AttachmentOffset = App.Placement(App.Vector(0, 0, 33), App.Rotation())
sketch7.addGeometry([
    Part.LineSegment(App.Vector(4.999148, 32.096637, 0), App.Vector(4.999148, 22.475064, 0)),  # 0
    Part.LineSegment(App.Vector(4.999148, 22.475064, 0), App.Vector(0.024936, 22.475064, 0)),  # 1
    Part.LineSegment(App.Vector(0.024936, 22.475064, 0), App.Vector(0.024936, 16.827462, 0)),  # 2
    Part.LineSegment(App.Vector(0.024936, 16.827462, 0), App.Vector(-10.005244, 16.827462, 0)),  # 3
    Part.LineSegment(App.Vector(-10.005244, 16.827462, 0), App.Vector(-10.005244, -14.505238, 0)),  # 4
    Part.LineSegment(App.Vector(-10.005244, -14.505238, 0), App.Vector(0.024936, -14.505238, 0)),  # 5
    Part.LineSegment(App.Vector(0.024936, -14.505238, 0), App.Vector(0.024936, -22.475064, 0)),  # 6
    Part.LineSegment(App.Vector(0.024936, -22.475064, 0), App.Vector(4.116537, -22.475064, 0)),  # 7
    Part.LineSegment(App.Vector(4.116537, -22.475064, 0), App.Vector(4.116537, -31.627896, 0)),  # 8
    Part.LineSegment(App.Vector(4.116537, -31.627896, 0), App.Vector(41.715776, -31.627896, 0)),  # 9
    Part.LineSegment(App.Vector(41.715776, -31.627896, 0), App.Vector(41.715776, -22.475064, 0)),  # 10
    Part.LineSegment(App.Vector(41.715776, -22.475064, 0), App.Vector(44.975064, -22.475064, 0)),  # 11
    Part.LineSegment(App.Vector(44.975064, -22.475064, 0), App.Vector(44.975064, -15.917416, 0)),  # 12
    Part.LineSegment(App.Vector(44.975064, -15.917416, 0), App.Vector(54.601901, -15.917416, 0)),  # 13
    Part.LineSegment(App.Vector(54.601901, -15.917416, 0), App.Vector(54.601901, 17.268768, 0)),  # 14
    Part.LineSegment(App.Vector(54.601901, 17.268768, 0), App.Vector(44.975064, 17.268768, 0)),  # 15
    Part.LineSegment(App.Vector(44.975064, 17.268768, 0), App.Vector(44.975064, 22.475064, 0)),  # 16
    Part.LineSegment(App.Vector(44.975064, 22.475064, 0), App.Vector(41.715776, 22.475064, 0)),  # 17
    Part.LineSegment(App.Vector(41.715776, 22.475064, 0), App.Vector(41.715776, 32.096637, 0)),  # 18
    Part.LineSegment(App.Vector(41.715776, 32.096637, 0), App.Vector(4.999148, 32.096637, 0)),  # 19
], False)
sketch7.addConstraint([
    Sketcher.Constraint("Coincident", 0, 2, 1, 1),
    Sketcher.Constraint("Coincident", 1, 2, 2, 1),
    Sketcher.Constraint("Coincident", 2, 2, 3, 1),
    Sketcher.Constraint("Coincident", 3, 2, 4, 1),
    Sketcher.Constraint("Coincident", 4, 2, 5, 1),
    Sketcher.Constraint("Coincident", 5, 2, 6, 1),
    Sketcher.Constraint("Coincident", 6, 2, 7, 1),
    Sketcher.Constraint("Coincident", 7, 2, 8, 1),
    Sketcher.Constraint("Coincident", 8, 2, 9, 1),
    Sketcher.Constraint("Coincident", 9, 2, 10, 1),
    Sketcher.Constraint("Coincident", 10, 2, 11, 1),
    Sketcher.Constraint("Coincident", 11, 2, 12, 1),
    Sketcher.Constraint("Coincident", 12, 2, 13, 1),
    Sketcher.Constraint("Coincident", 13, 2, 14, 1),
    Sketcher.Constraint("Coincident", 14, 2, 15, 1),
    Sketcher.Constraint("Coincident", 15, 2, 16, 1),
    Sketcher.Constraint("Coincident", 16, 2, 17, 1),
    Sketcher.Constraint("Coincident", 17, 2, 18, 1),
    Sketcher.Constraint("Coincident", 18, 2, 19, 1),
    Sketcher.Constraint("Coincident", 19, 2, 0, 1),
    Sketcher.Constraint("Vertical", 0),
    Sketcher.Constraint("Horizontal", 1),
    Sketcher.Constraint("Vertical", 2),
    Sketcher.Constraint("Horizontal", 3),
    Sketcher.Constraint("Vertical", 4),
    Sketcher.Constraint("Horizontal", 5),
    Sketcher.Constraint("Vertical", 6),
    Sketcher.Constraint("Horizontal", 7),
    Sketcher.Constraint("Vertical", 8),
    Sketcher.Constraint("Horizontal", 9),
    Sketcher.Constraint("Vertical", 10),
    Sketcher.Constraint("Horizontal", 11),
    Sketcher.Constraint("Vertical", 12),
    Sketcher.Constraint("Horizontal", 13),
    Sketcher.Constraint("Vertical", 14),
    Sketcher.Constraint("Horizontal", 15),
    Sketcher.Constraint("Vertical", 16),
    Sketcher.Constraint("Horizontal", 17),
    Sketcher.Constraint("Vertical", 18),
    Sketcher.Constraint("Horizontal", 19),
    Sketcher.Constraint("Symmetric", 1, 2, 6, 2, -1),
    Sketcher.Constraint("Symmetric", 11, 2, 16, 2, -1),
    Sketcher.Constraint("Horizontal", 7, 2, 10, 2),
    Sketcher.Constraint("Vertical", 10, 2, 17, 2),
    Sketcher.Constraint("DistanceX", 7, 1, 7, 2, Q("4.091601 mm")),
    Sketcher.Constraint("DistanceY", 2, 2, 2, 1, Q("5.647602 mm")),
    Sketcher.Constraint("DistanceY", 4, 2, 4, 1, Q("31.3327 mm")),
    Sketcher.Constraint("DistanceX", 1, 2, 1, 1, Q("4.974212 mm")),
    Sketcher.Constraint("DistanceX", 3, 2, 3, 1, Q("10.03018 mm")),
    Sketcher.Constraint("DistanceX", 9, 1, 9, 2, Q("37.59924 mm")),
    Sketcher.Constraint("DistanceY", 12, 1, 12, 2, Q("6.557648 mm")),
    Sketcher.Constraint("DistanceX", -1, 1, 13, 2, Q("54.601901 mm")),
    Sketcher.Constraint("DistanceX", 11, 1, 11, 2, Q("3.259288 mm")),
    Sketcher.Constraint("DistanceX", 13, 1, 13, 2, Q("9.626837 mm")),
    Sketcher.Constraint("DistanceY", 0, 2, 0, 1, Q("9.621573 mm")),
    Sketcher.Constraint("DistanceY", 6, 2, 6, 1, Q("7.969826 mm")),
    Sketcher.Constraint("DistanceY", 8, 2, 8, 1, Q("9.152832 mm")),
    Sketcher.Constraint("DistanceY", 14, 1, 14, 2, Q("33.186184 mm")),
])
pocket3 = body.newObject("PartDesign::Pocket", "Pocket002")
pocket3.Profile = sketch7
pocket3.setExpression("Length", "Params.pocket3_length")

# Sketch on XY plane
sketch8 = body.newObject("Sketcher::SketchObject", "Sketch007")
sketch8.AttachmentSupport = (doc.getObject("XY_Plane"), [""])
sketch8.MapMode = "FlatFace"
sketch8.AttachmentOffset = App.Placement(App.Vector(0, 0, -50), App.Rotation())
sketch8.addGeometry([
    Part.LineSegment(App.Vector(72.5, 467, 0), App.Vector(72.5, -33, 0)),
    Part.LineSegment(App.Vector(72.5, -33, 0), App.Vector(-27.5, -33, 0)),
    Part.LineSegment(App.Vector(-27.5, -33, 0), App.Vector(-27.5, 467, 0)),
    Part.LineSegment(App.Vector(-27.5, 467, 0), App.Vector(72.5, 467, 0)),
], False)
sketch8.addConstraint([
    Sketcher.Constraint("Coincident", 0, 2, 1, 1),
    Sketcher.Constraint("Coincident", 1, 2, 2, 1),
    Sketcher.Constraint("Coincident", 2, 2, 3, 1),
    Sketcher.Constraint("Coincident", 3, 2, 0, 1),
    Sketcher.Constraint("Vertical", 0),
    Sketcher.Constraint("Horizontal", 1),
    Sketcher.Constraint("Vertical", 2),
    Sketcher.Constraint("Horizontal", 3),
    Sketcher.Constraint("DistanceX", 1, 2, 1, 1, Q("100 mm")),
    Sketcher.Constraint("DistanceY", 0, 2, 0, 1, Q("500 mm")),
    Sketcher.Constraint("DistanceY", 0, 2, -1, 1, Q("33 mm")),
    Sketcher.Constraint("DistanceX", -1, 1, 0, 2, Q("72.5 mm")),
])
sketch8.setExpression("Constraints[8]", "Params.sketch8_width")
sketch8.setExpression("Constraints[9]", "Params.sketch8_height")
pad4 = body.newObject("PartDesign::Pad", "Pad003")
pad4.Profile = sketch8
pad4.setExpression("Length", "Params.pad4_length")
pad4.Reversed = True

# Sketch on XZ plane
sketch9 = body.newObject("Sketcher::SketchObject", "Sketch008")
sketch9.AttachmentSupport = (doc.getObject("XZ_Plane"), [""])
sketch9.MapMode = "FlatFace"
sketch9.AttachmentOffset = App.Placement(App.Vector(0, 0, -467), App.Rotation())
sketch9.addGeometry(Part.Circle(App.Vector(22.5, -150, 0), App.Vector(0, 0, 1), 15), False)
sketch9.addConstraint([
    Sketcher.Constraint("Diameter", 0, Q("30 mm")),
    Sketcher.Constraint("DistanceY", 0, 3, -1, 1, Q("150 mm")),
    Sketcher.Constraint("DistanceX", -1, 1, 0, 3, Q("22.5 mm")),
])
sketch9.setExpression("Constraints[0]", "Params.sketch9_diameter")
pad5 = body.newObject("PartDesign::Pad", "Pad004")
pad5.Profile = sketch9
pad5.Type = "TwoLengths"
pad5.setExpression("Length", "Params.pad5_length")
pad5.setExpression("Length2", "Params.pad5_length2")
pad5.Reversed = True

# Sketch on YZ plane
sketch10 = body.newObject("Sketcher::SketchObject", "Sketch009")
sketch10.AttachmentSupport = (doc.getObject("YZ_Plane"), [""])
sketch10.MapMode = "FlatFace"
sketch10.AttachmentOffset = App.Placement(App.Vector(0, 0, 72.5), App.Rotation())
sketch10.addGeometry([
    Part.LineSegment(App.Vector(467, -50, 0), App.Vector(250, -50, 0)),  # 0
    Part.BSplineCurve([App.Vector(250, -50, 0), App.Vector(314.396639, -76.315551, 0), App.Vector(429.680133, -56.559616, 0), App.Vector(467, -135, 0)], [4, 4], [0, 1], False, 3, [1, 1, 1, 1], False),  # 1
    Part.LineSegment(App.Vector(467, -135, 0), App.Vector(467, -50, 0)),  # 2
    Part.LineSegment(App.Vector(467, -198, 0), App.Vector(467, -164.121809, 0)),  # 3
    Part.BSplineCurve([App.Vector(467, -164.121809, 0), App.Vector(360.435548, -193.074894, 0), App.Vector(250, -198, 0)], [3, 3], [0, 1], False, 2, [1, 1, 1], False),  # 4
    Part.LineSegment(App.Vector(250, -198, 0), App.Vector(467, -198, 0)),  # 5
], False)
sketch10.addConstraint([
    Sketcher.Constraint("Block", 1),
    Sketcher.Constraint("Block", 4),
    Sketcher.Constraint("Coincident", 0, 2, 1, 1),
    Sketcher.Constraint("Coincident", 1, 2, 2, 1),
    Sketcher.Constraint("Coincident", 2, 2, 0, 1),
    Sketcher.Constraint("Coincident", 3, 2, 4, 1),
    Sketcher.Constraint("Coincident", 4, 2, 5, 1),
    Sketcher.Constraint("Coincident", 5, 2, 3, 1),
    Sketcher.Constraint("Horizontal", 0),
    Sketcher.Constraint("Vertical", 2),
    Sketcher.Constraint("Vertical", 3),
    Sketcher.Constraint("Horizontal", 5),
])
pocket4 = body.newObject("PartDesign::Pocket", "Pocket003")
pocket4.Profile = sketch10
pocket4.setExpression("Length", "Params.pocket4_length")

# Sketch on XZ plane
sketch11 = body.newObject("Sketcher::SketchObject", "Sketch010")
sketch11.AttachmentSupport = (doc.getObject("XZ_Plane"), [""])
sketch11.MapMode = "FlatFace"
sketch11.AttachmentOffset = App.Placement(App.Vector(0, 0, 33), App.Rotation())
sketch11.addGeometry([
    Part.LineSegment(App.Vector(-27.5, -50, 0), App.Vector(-27.5, -198.739556, 0)),
    Part.LineSegment(App.Vector(-27.5, -198.739556, 0), App.Vector(72.5, -198.739556, 0)),
    Part.LineSegment(App.Vector(72.5, -198.739556, 0), App.Vector(72.5, -50, 0)),
    Part.LineSegment(App.Vector(72.5, -50, 0), App.Vector(-27.5, -50, 0)),
], False)
sketch11.addConstraint([
    Sketcher.Constraint("Coincident", 0, 2, 1, 1),
    Sketcher.Constraint("Coincident", 1, 2, 2, 1),
    Sketcher.Constraint("Coincident", 2, 2, 3, 1),
    Sketcher.Constraint("Coincident", 3, 2, 0, 1),
    Sketcher.Constraint("Vertical", 0),
    Sketcher.Constraint("Horizontal", 1),
    Sketcher.Constraint("Vertical", 2),
    Sketcher.Constraint("Horizontal", 3),
    Sketcher.Constraint("DistanceX", 1, 1, 1, 2, Q("100 mm")),
    Sketcher.Constraint("DistanceY", 2, 2, -1, 1, Q("50 mm")),
    Sketcher.Constraint("DistanceX", 0, 2, -1, 1, Q("27.5 mm")),
    Sketcher.Constraint("DistanceY", 0, 2, 0, 1, Q("148.739556 mm")),
])
sketch11.setExpression("Constraints[8]", "Params.sketch11_width")
pad6 = body.newObject("PartDesign::Pad", "Pad005")
pad6.Profile = sketch11
pad6.setExpression("Length", "Params.pad6_length")

doc.recompute()
